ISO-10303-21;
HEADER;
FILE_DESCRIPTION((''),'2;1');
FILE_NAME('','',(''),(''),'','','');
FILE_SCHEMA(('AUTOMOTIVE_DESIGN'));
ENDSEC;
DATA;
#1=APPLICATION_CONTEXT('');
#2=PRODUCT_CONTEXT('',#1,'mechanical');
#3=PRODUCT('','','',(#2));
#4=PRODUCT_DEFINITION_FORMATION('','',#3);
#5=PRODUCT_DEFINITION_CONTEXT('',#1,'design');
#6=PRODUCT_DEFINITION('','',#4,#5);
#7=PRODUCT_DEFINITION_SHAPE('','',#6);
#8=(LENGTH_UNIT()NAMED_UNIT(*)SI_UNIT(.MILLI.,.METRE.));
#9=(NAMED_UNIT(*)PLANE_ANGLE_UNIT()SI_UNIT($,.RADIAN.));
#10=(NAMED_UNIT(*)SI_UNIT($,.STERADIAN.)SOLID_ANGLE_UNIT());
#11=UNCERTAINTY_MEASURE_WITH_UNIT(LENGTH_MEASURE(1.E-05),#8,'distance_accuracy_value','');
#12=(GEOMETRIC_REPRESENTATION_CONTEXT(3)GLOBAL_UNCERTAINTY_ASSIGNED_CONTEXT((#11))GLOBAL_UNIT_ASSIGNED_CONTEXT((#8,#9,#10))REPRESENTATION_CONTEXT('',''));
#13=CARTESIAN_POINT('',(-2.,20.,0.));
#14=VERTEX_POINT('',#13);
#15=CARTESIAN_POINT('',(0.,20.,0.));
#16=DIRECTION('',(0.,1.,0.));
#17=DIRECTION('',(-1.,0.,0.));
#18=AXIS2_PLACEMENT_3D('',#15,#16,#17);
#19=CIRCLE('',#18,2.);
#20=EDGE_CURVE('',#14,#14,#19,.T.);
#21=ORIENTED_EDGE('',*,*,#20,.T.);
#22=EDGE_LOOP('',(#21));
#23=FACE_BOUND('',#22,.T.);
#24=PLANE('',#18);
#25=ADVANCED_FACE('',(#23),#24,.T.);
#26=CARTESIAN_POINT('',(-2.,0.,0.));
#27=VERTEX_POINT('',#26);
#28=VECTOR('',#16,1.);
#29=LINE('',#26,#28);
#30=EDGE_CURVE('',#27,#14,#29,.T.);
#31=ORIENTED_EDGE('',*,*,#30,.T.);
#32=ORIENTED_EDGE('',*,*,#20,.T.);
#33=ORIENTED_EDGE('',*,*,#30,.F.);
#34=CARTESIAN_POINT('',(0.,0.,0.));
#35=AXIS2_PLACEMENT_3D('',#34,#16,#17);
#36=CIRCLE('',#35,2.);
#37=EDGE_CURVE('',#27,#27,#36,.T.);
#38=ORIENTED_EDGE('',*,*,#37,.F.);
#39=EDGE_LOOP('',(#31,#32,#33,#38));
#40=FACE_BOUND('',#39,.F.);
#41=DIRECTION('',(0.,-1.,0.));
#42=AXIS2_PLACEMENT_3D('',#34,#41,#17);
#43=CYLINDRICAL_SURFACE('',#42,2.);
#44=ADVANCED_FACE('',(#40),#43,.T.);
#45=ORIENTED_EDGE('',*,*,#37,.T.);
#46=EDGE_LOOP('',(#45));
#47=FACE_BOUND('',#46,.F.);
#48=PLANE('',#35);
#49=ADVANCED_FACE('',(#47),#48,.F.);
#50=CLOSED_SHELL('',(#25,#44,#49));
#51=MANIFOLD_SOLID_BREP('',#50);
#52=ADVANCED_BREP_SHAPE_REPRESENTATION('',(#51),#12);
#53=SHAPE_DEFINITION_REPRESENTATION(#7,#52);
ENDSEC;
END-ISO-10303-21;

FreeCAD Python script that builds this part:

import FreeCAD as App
import Part
import Sketcher
Q = App.Units.Quantity

doc = App.newDocument("Part")
params = doc.addObject("Spreadsheet::Sheet", "Params")
for row, (alias, value) in enumerate([
    ("sketch1_diameter", "4 mm"),
    ("pad1_length", "20 mm"),
], start=1):
    params.set(f"A{row}", alias)
    params.set(f"B{row}", "=" + value)
    params.setAlias(f"B{row}", alias)

body = doc.addObject("PartDesign::Body", "Body")

sketch1 = body.newObject("Sketcher::SketchObject", "Sketch")
sketch1.AttachmentSupport = (doc.getObject("XZ_Plane"), [""])
sketch1.MapMode = "FlatFace"
sketch1.addGeometry(Part.Circle(App.Vector(0, 0, 0), App.Vector(0, 0, 1), 2), False)
sketch1.addConstraint(Sketcher.Constraint("Coincident", 0, 3, -1, 1))
sketch1.addConstraint(Sketcher.Constraint("Diameter", 0, Q("4 mm")))
sketch1.setExpression("Constraints[1]", "Params.sketch1_diameter")
pad1 = body.newObject("PartDesign::Pad", "Pad")
pad1.Profile = sketch1
pad1.setExpression("Length", "Params.pad1_length")
pad1.Reversed = True

doc.recompute()
